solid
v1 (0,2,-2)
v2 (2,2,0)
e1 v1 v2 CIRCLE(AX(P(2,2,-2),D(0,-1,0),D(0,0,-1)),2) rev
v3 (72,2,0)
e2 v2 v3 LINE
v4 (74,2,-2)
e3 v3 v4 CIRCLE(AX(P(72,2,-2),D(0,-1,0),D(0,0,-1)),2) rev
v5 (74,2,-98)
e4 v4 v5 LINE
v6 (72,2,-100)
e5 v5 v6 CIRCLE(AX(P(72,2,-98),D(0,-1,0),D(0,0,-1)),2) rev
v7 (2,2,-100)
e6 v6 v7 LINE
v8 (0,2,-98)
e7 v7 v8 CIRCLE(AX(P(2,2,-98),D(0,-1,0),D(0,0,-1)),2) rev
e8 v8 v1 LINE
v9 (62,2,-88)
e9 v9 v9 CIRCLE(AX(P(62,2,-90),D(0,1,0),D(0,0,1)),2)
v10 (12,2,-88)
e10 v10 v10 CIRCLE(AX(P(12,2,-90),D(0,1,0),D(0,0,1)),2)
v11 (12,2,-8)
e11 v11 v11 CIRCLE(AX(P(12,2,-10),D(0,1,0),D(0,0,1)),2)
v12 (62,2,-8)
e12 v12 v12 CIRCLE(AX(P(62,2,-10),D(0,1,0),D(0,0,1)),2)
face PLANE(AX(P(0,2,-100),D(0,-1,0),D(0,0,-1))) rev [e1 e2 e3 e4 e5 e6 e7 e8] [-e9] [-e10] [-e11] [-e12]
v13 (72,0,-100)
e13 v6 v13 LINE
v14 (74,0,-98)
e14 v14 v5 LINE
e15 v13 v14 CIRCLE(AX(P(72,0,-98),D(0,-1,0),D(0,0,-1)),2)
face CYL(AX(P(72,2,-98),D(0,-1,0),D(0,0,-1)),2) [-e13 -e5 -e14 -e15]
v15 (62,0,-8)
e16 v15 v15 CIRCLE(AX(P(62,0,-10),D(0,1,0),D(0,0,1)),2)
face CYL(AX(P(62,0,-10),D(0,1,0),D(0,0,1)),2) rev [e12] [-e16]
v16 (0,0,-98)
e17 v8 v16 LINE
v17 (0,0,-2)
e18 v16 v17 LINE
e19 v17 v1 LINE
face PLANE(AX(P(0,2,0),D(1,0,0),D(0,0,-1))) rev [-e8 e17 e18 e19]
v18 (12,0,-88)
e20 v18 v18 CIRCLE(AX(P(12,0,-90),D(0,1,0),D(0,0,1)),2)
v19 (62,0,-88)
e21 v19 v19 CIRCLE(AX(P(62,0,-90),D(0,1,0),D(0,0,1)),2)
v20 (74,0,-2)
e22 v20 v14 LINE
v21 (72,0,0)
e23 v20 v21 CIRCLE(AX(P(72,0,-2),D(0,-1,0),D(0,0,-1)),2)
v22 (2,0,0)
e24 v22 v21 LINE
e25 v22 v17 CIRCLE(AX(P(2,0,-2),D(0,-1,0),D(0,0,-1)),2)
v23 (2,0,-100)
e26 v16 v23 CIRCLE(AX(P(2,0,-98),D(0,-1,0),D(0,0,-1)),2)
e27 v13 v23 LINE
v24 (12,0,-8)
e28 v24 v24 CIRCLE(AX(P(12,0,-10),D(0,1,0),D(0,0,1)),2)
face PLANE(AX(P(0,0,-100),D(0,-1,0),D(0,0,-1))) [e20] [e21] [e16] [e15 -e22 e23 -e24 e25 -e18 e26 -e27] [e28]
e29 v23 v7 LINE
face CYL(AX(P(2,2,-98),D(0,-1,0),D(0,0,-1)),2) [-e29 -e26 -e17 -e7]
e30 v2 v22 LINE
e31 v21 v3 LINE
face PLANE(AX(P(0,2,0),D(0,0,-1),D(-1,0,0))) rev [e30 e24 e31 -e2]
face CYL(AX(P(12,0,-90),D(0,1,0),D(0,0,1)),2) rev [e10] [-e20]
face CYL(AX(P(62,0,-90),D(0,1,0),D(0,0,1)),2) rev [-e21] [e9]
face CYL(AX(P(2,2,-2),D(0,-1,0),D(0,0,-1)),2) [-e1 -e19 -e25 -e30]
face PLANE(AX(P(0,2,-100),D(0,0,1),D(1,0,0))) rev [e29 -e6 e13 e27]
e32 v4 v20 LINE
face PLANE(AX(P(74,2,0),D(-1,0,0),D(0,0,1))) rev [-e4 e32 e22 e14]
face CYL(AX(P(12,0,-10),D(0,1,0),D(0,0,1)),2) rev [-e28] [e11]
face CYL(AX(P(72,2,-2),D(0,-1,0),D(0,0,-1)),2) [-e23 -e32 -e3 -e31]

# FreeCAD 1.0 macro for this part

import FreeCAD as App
import Part
import Sketcher

V = App.Vector
Q = App.Units.Quantity


def edges_at(feature, points):
    """Names of the edges that pass closest to the given points."""
    edges = feature.Shape.Edges
    near = lambda p: min(range(len(edges)), key=lambda i: edges[i].distToShape(Part.Vertex(*p))[0])
    return sorted({f"Edge{near(p) + 1}" for p in points})


def add_polygon(sketch, points):
    """Adds a closed chain of lines whose ends are joined by coincident constraints."""
    first, n = sketch.GeometryCount, len(points)
    for a, b in zip(points, points[1:] + points[:1]):
        sketch.addGeometry(Part.LineSegment(App.Vector(*a, 0), App.Vector(*b, 0)), False)
    for i in range(n):
        sketch.addConstraint(Sketcher.Constraint("Coincident", first + i, 2, first + (i + 1) % n, 1))

doc = App.newDocument("Part")
params = doc.addObject("Spreadsheet::Sheet", "Params")
for row, (alias, value) in enumerate([
    ("sketch1_width", "74 mm"),
    ("sketch1_height", "100 mm"),
    ("pad1_length", "2 mm"),
    ("fillet_radius", "2 mm"),
    ("sketch2_diameter", "4 mm"),
], start=1):
    params.set(f"A{row}", alias)
    params.set(f"B{row}", "=" + value)
    params.setAlias(f"B{row}", alias)

body = doc.addObject("PartDesign::Body", "Body")

sketch1 = body.newObject("Sketcher::SketchObject", "Sketch")
sketch1.AttachmentSupport = (doc.getObject("XZ_Plane"), [""])
sketch1.MapMode = "FlatFace"
add_polygon(sketch1, [(0, -100), (0, 0), (74, 0), (74, -100)])
sketch1.addConstraint(Sketcher.Constraint("Vertical", 0))
sketch1.addConstraint(Sketcher.Constraint("Horizontal", 1))
sketch1.addConstraint(Sketcher.Constraint("Vertical", 2))
sketch1.addConstraint(Sketcher.Constraint("Horizontal", 3))
sketch1.addConstraint(Sketcher.Constraint("Coincident", 0, 2, -1, 1))
sketch1.addConstraint(Sketcher.Constraint("DistanceX", 1, 1, 1, 2, Q("74 mm")))
sketch1.addConstraint(Sketcher.Constraint("DistanceY", 0, 1, 0, 2, Q("100 mm")))
sketch1.setExpression("Constraints[9]", "Params.sketch1_width")
sketch1.setExpression("Constraints[10]", "Params.sketch1_height")
pad1 = body.newObject("PartDesign::Pad", "Pad")
pad1.Profile = sketch1
pad1.setExpression("Length", "Params.pad1_length")
pad1.Reversed = True
doc.recompute()

fillet = body.newObject("PartDesign::Fillet", "Fillet")
fillet.Base = (pad1, edges_at(pad1, [
    (0, 1, -100),
    (74, 1, -100),
    (74, 1, 0),
    (0, 1, 0),
]))
fillet.setExpression("Radius", "Params.fillet_radius")

sketch2 = body.newObject("Sketcher::SketchObject", "Sketch001")
sketch2.AttachmentSupport = (doc.getObject("XZ_Plane"), [""])
sketch2.MapMode = "FlatFace"
sketch2.AttachmentOffset = App.Placement(V(0, 0, -2), App.Rotation())
sketch2.addGeometry(Part.Circle(V(12, -90, 0), V(0, 0, 1), 2), False)
sketch2.addGeometry(Part.Circle(V(62, -90, 0), V(0, 0, 1), 2), False)
sketch2.addGeometry(Part.Circle(V(62, -10, 0), V(0, 0, 1), 2), False)
sketch2.addGeometry(Part.Circle(V(12, -10, 0), V(0, 0, 1), 2), False)
sketch2.addConstraint(Sketcher.Constraint("Equal", 0, 1))
sketch2.addConstraint(Sketcher.Constraint("Equal", 1, 2))
sketch2.addConstraint(Sketcher.Constraint("Equal", 2, 3))
sketch2.addConstraint(Sketcher.Constraint("Horizontal", 0, 3, 1, 3))
sketch2.addConstraint(Sketcher.Constraint("Horizontal", 2, 3, 3, 3))
sketch2.addConstraint(Sketcher.Constraint("Vertical", 1, 3, 2, 3))
sketch2.addConstraint(Sketcher.Constraint("Vertical", 0, 3, 3, 3))
sketch2.addConstraint(Sketcher.Constraint("Diameter", 0, Q("4 mm")))
sketch2.addConstraint(Sketcher.Constraint("DistanceX", -1, 1, 0, 3, Q("12 mm")))
sketch2.addConstraint(Sketcher.Constraint("DistanceY", 0, 3, -1, 1, Q("90 mm")))
sketch2.addConstraint(Sketcher.Constraint("DistanceX", -1, 1, 1, 3, Q("62 mm")))
sketch2.addConstraint(Sketcher.Constraint("DistanceY", 2, 3, -1, 1, Q("10 mm")))
sketch2.setExpression("Constraints[7]", "Params.sketch2_diameter")
pocket1 = body.newObject("PartDesign::Pocket", "Pocket")
pocket1.Profile = sketch2
pocket1.Type = "ThroughAll"
pocket1.Reversed = True

doc.recompute()
